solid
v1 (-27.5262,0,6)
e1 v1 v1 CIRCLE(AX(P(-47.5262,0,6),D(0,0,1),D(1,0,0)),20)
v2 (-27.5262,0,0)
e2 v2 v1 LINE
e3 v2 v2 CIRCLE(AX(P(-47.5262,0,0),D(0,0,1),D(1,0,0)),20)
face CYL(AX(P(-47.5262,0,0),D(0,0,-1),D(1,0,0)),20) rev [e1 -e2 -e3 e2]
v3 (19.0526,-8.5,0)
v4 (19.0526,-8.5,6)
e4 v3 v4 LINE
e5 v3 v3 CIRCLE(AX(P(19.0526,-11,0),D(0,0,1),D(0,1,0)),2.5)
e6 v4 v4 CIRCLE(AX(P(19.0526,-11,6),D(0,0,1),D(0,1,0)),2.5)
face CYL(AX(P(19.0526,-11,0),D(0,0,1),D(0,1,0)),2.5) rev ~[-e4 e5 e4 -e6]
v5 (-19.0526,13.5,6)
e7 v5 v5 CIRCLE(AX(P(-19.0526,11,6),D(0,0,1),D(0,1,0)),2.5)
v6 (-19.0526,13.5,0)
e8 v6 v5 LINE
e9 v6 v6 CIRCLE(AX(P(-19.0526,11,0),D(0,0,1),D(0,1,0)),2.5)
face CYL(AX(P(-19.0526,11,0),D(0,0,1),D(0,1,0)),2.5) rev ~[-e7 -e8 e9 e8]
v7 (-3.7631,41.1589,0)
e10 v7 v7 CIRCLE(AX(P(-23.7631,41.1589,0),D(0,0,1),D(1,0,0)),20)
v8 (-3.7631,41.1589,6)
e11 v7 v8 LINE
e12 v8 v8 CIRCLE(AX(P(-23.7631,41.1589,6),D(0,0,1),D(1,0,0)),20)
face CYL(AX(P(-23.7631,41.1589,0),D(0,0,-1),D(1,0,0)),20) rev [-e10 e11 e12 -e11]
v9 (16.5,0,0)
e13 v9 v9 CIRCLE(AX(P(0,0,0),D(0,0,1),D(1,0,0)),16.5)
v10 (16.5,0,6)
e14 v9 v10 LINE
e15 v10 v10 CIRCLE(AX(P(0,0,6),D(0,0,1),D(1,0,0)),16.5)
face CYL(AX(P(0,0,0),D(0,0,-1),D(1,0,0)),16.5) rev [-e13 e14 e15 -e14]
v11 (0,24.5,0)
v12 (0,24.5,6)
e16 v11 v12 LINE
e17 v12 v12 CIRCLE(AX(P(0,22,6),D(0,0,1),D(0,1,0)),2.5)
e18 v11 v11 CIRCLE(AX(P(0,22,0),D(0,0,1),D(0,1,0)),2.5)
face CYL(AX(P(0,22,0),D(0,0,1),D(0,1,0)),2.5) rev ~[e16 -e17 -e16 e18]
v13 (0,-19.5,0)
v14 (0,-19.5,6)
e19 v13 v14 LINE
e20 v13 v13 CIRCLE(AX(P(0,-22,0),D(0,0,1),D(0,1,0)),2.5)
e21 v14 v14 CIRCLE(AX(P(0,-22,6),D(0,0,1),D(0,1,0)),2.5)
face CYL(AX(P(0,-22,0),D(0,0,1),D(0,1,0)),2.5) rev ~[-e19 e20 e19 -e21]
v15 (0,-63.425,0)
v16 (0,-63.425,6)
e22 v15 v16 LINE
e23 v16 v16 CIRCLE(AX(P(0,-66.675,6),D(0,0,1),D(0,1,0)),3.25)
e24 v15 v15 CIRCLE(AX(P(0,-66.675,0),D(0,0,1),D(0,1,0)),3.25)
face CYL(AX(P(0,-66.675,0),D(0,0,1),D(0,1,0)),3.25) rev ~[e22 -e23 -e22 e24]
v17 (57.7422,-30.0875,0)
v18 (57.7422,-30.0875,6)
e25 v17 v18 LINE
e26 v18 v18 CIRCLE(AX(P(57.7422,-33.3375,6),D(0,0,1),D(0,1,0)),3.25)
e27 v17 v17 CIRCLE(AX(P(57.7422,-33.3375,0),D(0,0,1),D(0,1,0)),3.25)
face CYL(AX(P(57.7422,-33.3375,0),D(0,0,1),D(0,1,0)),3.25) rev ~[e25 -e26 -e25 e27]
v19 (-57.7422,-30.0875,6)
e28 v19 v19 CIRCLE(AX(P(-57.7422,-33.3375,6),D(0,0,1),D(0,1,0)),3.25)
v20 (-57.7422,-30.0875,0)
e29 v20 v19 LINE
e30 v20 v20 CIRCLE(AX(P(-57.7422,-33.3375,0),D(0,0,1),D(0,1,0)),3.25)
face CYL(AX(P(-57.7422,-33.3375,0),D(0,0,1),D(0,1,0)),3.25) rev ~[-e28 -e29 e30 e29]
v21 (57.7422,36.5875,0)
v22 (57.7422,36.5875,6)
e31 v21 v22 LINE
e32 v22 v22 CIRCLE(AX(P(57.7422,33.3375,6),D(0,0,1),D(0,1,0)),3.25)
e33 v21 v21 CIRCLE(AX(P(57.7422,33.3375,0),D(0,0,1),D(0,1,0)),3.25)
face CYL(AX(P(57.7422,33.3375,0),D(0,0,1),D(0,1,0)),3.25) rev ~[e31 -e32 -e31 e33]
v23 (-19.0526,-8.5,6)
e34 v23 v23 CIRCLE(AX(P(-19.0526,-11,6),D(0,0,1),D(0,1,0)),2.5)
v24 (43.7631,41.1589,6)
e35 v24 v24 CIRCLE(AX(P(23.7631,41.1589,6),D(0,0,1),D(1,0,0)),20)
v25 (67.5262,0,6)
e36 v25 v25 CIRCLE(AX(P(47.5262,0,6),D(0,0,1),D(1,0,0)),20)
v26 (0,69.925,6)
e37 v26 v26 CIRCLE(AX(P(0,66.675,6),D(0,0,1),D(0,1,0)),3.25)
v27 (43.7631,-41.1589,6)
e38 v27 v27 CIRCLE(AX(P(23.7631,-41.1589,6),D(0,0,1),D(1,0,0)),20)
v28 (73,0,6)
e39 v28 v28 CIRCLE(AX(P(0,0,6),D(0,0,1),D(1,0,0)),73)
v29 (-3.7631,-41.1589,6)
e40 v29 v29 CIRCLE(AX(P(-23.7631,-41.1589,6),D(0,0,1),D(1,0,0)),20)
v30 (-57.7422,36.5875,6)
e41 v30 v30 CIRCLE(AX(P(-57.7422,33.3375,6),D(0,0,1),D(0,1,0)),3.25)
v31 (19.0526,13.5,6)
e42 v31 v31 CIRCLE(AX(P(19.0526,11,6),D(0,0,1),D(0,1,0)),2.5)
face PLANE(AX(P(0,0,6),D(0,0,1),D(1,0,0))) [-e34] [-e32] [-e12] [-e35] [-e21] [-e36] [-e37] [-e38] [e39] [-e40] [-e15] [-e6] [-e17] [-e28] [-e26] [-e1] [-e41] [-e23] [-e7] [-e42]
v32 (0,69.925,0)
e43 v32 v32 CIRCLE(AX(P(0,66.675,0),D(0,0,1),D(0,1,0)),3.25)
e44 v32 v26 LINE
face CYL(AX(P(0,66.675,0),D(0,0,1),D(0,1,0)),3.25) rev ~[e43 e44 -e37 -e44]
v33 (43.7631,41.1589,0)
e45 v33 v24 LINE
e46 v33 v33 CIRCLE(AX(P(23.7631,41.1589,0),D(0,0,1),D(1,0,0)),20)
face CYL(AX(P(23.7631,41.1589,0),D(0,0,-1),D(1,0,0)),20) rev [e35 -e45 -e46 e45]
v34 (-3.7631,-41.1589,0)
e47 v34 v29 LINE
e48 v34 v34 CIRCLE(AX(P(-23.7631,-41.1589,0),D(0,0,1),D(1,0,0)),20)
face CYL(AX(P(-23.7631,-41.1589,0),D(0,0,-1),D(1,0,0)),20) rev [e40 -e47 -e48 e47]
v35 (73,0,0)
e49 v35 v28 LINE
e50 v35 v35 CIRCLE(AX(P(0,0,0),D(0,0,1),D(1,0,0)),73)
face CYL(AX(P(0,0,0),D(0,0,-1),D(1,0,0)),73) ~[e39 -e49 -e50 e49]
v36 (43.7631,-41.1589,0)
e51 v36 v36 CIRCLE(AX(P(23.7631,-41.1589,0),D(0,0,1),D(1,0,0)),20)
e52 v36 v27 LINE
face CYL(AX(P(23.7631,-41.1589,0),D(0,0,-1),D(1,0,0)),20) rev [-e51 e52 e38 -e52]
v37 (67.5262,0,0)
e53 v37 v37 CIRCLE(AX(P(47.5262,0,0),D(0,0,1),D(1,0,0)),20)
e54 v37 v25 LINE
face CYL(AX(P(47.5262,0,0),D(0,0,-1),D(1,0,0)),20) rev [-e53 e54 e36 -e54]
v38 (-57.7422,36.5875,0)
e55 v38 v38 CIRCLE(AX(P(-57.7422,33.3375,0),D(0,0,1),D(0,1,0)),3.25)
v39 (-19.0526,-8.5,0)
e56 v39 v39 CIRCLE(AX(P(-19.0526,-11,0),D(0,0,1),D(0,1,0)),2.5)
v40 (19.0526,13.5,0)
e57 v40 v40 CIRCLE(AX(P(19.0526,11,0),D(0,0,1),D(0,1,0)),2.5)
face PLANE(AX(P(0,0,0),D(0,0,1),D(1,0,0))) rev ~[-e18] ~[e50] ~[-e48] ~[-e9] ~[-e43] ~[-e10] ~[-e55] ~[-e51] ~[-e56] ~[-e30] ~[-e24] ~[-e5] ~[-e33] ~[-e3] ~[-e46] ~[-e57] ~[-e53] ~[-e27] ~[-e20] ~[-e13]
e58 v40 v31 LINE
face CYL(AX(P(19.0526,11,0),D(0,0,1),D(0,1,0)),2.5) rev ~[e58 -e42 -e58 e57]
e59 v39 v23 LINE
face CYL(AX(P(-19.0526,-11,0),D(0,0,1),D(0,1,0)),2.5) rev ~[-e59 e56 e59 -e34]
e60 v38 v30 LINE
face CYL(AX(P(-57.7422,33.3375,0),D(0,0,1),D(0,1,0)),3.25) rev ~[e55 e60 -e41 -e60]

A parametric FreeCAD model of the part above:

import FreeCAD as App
import Part
import Sketcher

V = App.Vector

doc = App.newDocument("Part")
body = doc.addObject("PartDesign::Body", "Body")

sketch1 = doc.addObject("Sketcher::SketchObject", "Sketch")
body.addObject(sketch1)
sketch1.AttachmentSupport = (doc.XY_Plane, [""])
sketch1.MapMode = "FlatFace"
sketch1.addGeometry(Part.Circle(V(0, 0, 0), V(0, 0, 1), 73), False)
sketch1.addGeometry(Part.Circle(V(-24, -41, 0), V(0, 0, 1), 20), False)
sketch1.addGeometry(Part.Circle(V(24, -41, 0), V(0, 0, 1), 20), False)
sketch1.addGeometry(Part.Circle(V(-48, 0, 0), V(0, 0, 1), 20), False)
sketch1.addGeometry(Part.Circle(V(-24, 41, 0), V(0, 0, 1), 20), False)
sketch1.addGeometry(Part.Circle(V(0, 0, 0), V(0, 0, 1), 16), False)
sketch1.addGeometry(Part.Circle(V(48, 0, 0), V(0, 0, 1), 20), False)
sketch1.addGeometry(Part.Circle(V(24, 41, 0), V(0, 0, 1), 20), False)
sketch1.addConstraint(Sketcher.Constraint("Coincident", 0, 3, -1, 1))
sketch1.addConstraint(Sketcher.Constraint("Coincident", 5, 3, -1, 1))
sketch1.addConstraint(Sketcher.Constraint("Equal", 1, 2))
sketch1.addConstraint(Sketcher.Constraint("Equal", 2, 3))
sketch1.addConstraint(Sketcher.Constraint("Equal", 3, 4))
sketch1.addConstraint(Sketcher.Constraint("Equal", 4, 6))
sketch1.addConstraint(Sketcher.Constraint("Equal", 6, 7))
sketch1.addConstraint(Sketcher.Constraint("Symmetric", 2, 3, 4, 3, -1, 1))
sketch1.addConstraint(Sketcher.Constraint("Symmetric", 3, 3, 6, 3, -1, 1))
sketch1.addConstraint(Sketcher.Constraint("Symmetric", 1, 3, 7, 3, -1, 1))
sketch1.addConstraint(Sketcher.Constraint("Symmetric", 1, 3, 2, 3, -2))
sketch1.addConstraint(Sketcher.Constraint("PointOnObject", 3, 3, -1))
sketch1.addConstraint(Sketcher.Constraint("Diameter", 0, 146.0))
sketch1.addConstraint(Sketcher.Constraint("Diameter", 1, 40.0))
sketch1.addConstraint(Sketcher.Constraint("Diameter", 5, 33.0))
sketch1.addConstraint(Sketcher.Constraint("DistanceX", 1, 3, -1, 1, 23.763))
sketch1.addConstraint(Sketcher.Constraint("DistanceY", 1, 3, -1, 1, 41.159))
sketch1.addConstraint(Sketcher.Constraint("DistanceX", 3, 3, 1, 3, 23.763))
pad1 = doc.addObject("PartDesign::Pad", "Pad")
body.addObject(pad1)
pad1.Profile = sketch1
pad1.Length = 6

sketch2 = doc.addObject("Sketcher::SketchObject", "Sketch001")
body.addObject(sketch2)
sketch2.AttachmentSupport = (doc.XY_Plane, [""])
sketch2.MapMode = "FlatFace"
sketch2.addGeometry(Part.Circle(V(0, 66.7, 0), V(0, 0, 1), 3.2), False)
sketch2.addGeometry(Part.Circle(V(-57.7, 33.3, 0), V(0, 0, 1), 3.2), False)
sketch2.addGeometry(Part.Circle(V(-57.7, -33.3, 0), V(0, 0, 1), 3.2), False)
sketch2.addGeometry(Part.Circle(V(0, -66.7, 0), V(0, 0, 1), 3.2), False)
sketch2.addGeometry(Part.Circle(V(57.7, -33.3, 0), V(0, 0, 1), 3.2), False)
sketch2.addGeometry(Part.Circle(V(57.7, 33.3, 0), V(0, 0, 1), 3.2), False)
sketch2.addConstraint(Sketcher.Constraint("Equal", 0, 1))
sketch2.addConstraint(Sketcher.Constraint("Equal", 1, 2))
sketch2.addConstraint(Sketcher.Constraint("Equal", 2, 3))
sketch2.addConstraint(Sketcher.Constraint("Equal", 3, 4))
sketch2.addConstraint(Sketcher.Constraint("Equal", 4, 5))
sketch2.addConstraint(Sketcher.Constraint("Symmetric", 0, 3, 3, 3, -1, 1))
sketch2.addConstraint(Sketcher.Constraint("Symmetric", 1, 3, 4, 3, -1, 1))
sketch2.addConstraint(Sketcher.Constraint("Symmetric", 2, 3, 5, 3, -1, 1))
sketch2.addConstraint(Sketcher.Constraint("Symmetric", 2, 3, 4, 3, -2))
sketch2.addConstraint(Sketcher.Constraint("PointOnObject", 0, 3, -2))
sketch2.addConstraint(Sketcher.Constraint("Diameter", 0, 6.5))
sketch2.addConstraint(Sketcher.Constraint("DistanceY", 3, 3, 0, 3, 133.35))
sketch2.addConstraint(Sketcher.Constraint("DistanceY", 2, 3, 1, 3, 66.675))
sketch2.addConstraint(Sketcher.Constraint("DistanceX", 1, 3, -1, 1, 57.7422))
doc.recompute()
hole = doc.addObject("PartDesign::Hole", "Hole")
body.addObject(hole)
hole.Profile = sketch2
hole.ThreadType = "None"
hole.Diameter = 6.5
hole.DepthType = "ThroughAll"
hole.Reversed = True

sketch3 = doc.addObject("Sketcher::SketchObject", "Sketch002")
body.addObject(sketch3)
sketch3.AttachmentSupport = (doc.XY_Plane, [""])
sketch3.MapMode = "FlatFace"
sketch3.addGeometry(Part.Circle(V(0, 22, 0), V(0, 0, 1), 2.5), False)
sketch3.addGeometry(Part.Circle(V(-19.1, 11, 0), V(0, 0, 1), 2.5), False)
sketch3.addGeometry(Part.Circle(V(-19.1, -11, 0), V(0, 0, 1), 2.5), False)
sketch3.addGeometry(Part.Circle(V(0, -22, 0), V(0, 0, 1), 2.5), False)
sketch3.addGeometry(Part.Circle(V(19.1, 11, 0), V(0, 0, 1), 2.5), False)
sketch3.addGeometry(Part.Circle(V(19.1, -11, 0), V(0, 0, 1), 2.5), False)
sketch3.addConstraint(Sketcher.Constraint("Equal", 0, 1))
sketch3.addConstraint(Sketcher.Constraint("Equal", 1, 2))
sketch3.addConstraint(Sketcher.Constraint("Equal", 2, 3))
sketch3.addConstraint(Sketcher.Constraint("Equal", 3, 4))
sketch3.addConstraint(Sketcher.Constraint("Equal", 4, 5))
sketch3.addConstraint(Sketcher.Constraint("Symmetric", 0, 3, 3, 3, -1, 1))
sketch3.addConstraint(Sketcher.Constraint("Symmetric", 2, 3, 4, 3, -1, 1))
sketch3.addConstraint(Sketcher.Constraint("Symmetric", 1, 3, 5, 3, -1, 1))
sketch3.addConstraint(Sketcher.Constraint("Symmetric", 1, 3, 4, 3, -2))
sketch3.addConstraint(Sketcher.Constraint("PointOnObject", 0, 3, -2))
sketch3.addConstraint(Sketcher.Constraint("Diameter", 0, 5.0))
sketch3.addConstraint(Sketcher.Constraint("DistanceY", -1, 1, 0, 3, 22.0))
sketch3.addConstraint(Sketcher.Constraint("DistanceY", -1, 1, 1, 3, 11.0))
sketch3.addConstraint(Sketcher.Constraint("DistanceX", 1, 3, -1, 1, 19.0526))
doc.recompute()
hole2 = doc.addObject("PartDesign::Hole", "Hole001")
body.addObject(hole2)
hole2.Profile = sketch3
hole2.ThreadType = "None"
hole2.Diameter = 5
hole2.DepthType = "ThroughAll"
hole2.Reversed = True

doc.recompute()
